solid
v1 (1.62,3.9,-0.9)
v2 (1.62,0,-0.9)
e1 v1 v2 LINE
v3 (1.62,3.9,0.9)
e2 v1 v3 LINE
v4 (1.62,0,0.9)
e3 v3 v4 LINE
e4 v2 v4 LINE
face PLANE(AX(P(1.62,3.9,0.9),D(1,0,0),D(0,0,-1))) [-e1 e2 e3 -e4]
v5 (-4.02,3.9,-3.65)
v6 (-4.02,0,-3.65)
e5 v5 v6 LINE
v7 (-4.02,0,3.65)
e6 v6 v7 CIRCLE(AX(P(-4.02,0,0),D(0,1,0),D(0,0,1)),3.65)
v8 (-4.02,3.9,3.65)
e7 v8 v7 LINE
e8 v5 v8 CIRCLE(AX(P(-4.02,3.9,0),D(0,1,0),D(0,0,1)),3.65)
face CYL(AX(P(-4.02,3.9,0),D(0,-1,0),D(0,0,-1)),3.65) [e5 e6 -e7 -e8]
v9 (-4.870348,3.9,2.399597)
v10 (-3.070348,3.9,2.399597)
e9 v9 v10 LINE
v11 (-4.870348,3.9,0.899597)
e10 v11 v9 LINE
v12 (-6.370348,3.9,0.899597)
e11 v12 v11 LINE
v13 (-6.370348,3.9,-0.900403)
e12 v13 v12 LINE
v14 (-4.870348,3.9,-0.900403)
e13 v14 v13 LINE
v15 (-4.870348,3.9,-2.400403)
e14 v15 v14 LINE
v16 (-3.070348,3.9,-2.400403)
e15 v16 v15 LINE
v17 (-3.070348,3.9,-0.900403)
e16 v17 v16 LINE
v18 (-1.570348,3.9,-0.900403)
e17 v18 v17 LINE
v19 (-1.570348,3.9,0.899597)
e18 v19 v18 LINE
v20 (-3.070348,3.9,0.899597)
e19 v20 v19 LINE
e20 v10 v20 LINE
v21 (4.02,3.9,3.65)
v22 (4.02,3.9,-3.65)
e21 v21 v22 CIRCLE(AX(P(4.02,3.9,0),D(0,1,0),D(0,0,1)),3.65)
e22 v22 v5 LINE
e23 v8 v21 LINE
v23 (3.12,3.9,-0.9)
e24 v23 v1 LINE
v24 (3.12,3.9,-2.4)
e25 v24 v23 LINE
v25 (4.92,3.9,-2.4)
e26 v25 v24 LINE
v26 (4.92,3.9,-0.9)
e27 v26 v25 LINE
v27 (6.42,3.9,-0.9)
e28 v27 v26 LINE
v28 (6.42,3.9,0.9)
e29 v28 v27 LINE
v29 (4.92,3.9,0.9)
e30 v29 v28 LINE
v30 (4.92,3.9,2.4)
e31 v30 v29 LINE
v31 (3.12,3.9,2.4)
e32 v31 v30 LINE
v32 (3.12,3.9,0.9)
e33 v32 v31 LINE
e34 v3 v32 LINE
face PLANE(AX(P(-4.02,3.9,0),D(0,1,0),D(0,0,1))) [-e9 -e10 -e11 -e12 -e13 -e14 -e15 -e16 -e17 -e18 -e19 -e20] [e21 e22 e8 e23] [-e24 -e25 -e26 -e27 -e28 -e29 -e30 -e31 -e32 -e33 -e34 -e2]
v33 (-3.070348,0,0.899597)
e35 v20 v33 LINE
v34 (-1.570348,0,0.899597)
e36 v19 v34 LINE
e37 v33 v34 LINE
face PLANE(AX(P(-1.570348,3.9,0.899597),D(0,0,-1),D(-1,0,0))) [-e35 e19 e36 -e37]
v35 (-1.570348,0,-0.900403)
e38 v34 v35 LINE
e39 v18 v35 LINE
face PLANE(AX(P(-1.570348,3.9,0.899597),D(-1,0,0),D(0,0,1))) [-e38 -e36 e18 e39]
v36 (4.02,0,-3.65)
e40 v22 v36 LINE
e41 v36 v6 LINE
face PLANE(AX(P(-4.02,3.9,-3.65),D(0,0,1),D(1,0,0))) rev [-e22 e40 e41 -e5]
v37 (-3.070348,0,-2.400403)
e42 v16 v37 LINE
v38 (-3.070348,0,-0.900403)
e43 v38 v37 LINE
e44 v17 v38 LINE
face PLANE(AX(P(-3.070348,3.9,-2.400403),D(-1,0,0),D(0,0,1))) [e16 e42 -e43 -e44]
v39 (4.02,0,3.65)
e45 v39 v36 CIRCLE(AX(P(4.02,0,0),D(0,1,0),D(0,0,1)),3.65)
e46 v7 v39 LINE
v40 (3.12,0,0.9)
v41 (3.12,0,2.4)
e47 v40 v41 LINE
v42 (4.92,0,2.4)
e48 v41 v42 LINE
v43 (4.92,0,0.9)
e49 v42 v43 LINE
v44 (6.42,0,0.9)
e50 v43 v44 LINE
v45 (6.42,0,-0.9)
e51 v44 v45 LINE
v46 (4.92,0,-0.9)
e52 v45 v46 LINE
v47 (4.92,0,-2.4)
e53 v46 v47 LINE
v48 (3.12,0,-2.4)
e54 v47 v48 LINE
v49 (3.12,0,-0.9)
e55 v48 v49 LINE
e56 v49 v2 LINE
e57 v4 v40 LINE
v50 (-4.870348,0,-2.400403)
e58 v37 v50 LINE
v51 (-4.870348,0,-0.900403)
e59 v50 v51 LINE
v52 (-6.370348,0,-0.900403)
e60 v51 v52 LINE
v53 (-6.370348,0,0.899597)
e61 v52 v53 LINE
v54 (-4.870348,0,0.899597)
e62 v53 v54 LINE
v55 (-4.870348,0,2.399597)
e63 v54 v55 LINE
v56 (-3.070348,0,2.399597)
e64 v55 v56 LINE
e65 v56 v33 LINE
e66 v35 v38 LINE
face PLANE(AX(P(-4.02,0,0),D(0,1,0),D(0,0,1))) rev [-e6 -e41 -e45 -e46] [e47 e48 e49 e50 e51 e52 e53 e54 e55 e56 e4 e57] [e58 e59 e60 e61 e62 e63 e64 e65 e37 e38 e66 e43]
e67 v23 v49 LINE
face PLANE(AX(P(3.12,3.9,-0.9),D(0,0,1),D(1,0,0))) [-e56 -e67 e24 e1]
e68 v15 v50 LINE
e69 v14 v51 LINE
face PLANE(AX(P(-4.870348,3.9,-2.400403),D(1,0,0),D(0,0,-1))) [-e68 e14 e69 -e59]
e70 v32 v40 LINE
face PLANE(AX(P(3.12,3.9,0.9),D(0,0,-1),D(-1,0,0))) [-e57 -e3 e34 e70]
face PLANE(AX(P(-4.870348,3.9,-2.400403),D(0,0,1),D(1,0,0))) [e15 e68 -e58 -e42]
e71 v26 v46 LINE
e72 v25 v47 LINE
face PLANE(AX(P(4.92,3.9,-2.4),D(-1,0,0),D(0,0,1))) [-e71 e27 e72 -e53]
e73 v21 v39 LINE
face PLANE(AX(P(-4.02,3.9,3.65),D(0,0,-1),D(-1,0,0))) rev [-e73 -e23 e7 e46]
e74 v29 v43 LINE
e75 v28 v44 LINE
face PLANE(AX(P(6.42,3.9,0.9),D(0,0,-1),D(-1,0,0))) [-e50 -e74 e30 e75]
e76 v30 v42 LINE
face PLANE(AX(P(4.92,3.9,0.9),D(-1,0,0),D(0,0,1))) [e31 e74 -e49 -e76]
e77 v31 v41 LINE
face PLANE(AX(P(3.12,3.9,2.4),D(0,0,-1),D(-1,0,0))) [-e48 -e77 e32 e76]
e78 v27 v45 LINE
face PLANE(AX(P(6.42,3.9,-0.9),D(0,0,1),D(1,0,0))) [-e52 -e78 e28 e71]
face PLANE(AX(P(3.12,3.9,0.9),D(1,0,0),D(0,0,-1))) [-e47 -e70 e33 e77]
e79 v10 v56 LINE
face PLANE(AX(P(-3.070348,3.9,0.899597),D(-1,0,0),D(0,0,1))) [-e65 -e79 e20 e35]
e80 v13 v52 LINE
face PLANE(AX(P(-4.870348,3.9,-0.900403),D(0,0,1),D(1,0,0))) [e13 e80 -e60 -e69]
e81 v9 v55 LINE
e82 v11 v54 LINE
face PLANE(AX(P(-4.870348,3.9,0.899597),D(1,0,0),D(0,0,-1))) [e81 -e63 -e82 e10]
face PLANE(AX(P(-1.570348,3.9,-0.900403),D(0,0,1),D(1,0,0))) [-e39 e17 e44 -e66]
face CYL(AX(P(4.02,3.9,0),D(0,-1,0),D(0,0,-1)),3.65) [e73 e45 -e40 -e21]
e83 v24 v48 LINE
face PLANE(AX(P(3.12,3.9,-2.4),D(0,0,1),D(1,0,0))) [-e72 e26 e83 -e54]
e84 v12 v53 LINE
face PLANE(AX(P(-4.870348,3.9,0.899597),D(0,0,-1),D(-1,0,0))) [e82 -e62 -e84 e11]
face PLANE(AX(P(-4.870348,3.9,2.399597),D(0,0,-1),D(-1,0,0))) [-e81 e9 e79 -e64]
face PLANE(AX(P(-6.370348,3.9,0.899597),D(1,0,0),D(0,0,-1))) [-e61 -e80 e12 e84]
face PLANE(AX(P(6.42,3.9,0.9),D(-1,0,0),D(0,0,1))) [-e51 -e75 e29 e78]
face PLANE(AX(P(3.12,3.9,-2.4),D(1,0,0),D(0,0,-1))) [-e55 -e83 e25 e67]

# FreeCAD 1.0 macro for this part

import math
import FreeCAD as App
import Part
import Sketcher


def add_polygon(sketch, points):
    """Adds a closed chain of lines whose ends are joined by coincident constraints."""
    first, n = sketch.GeometryCount, len(points)
    for a, b in zip(points, points[1:] + points[:1]):
        sketch.addGeometry(Part.LineSegment(App.Vector(*a, 0), App.Vector(*b, 0)), False)
    for i in range(n):
        sketch.addConstraint(Sketcher.Constraint("Coincident", first + i, 2, first + (i + 1) % n, 1))

doc = App.newDocument("Part")
params = doc.addObject("Spreadsheet::Sheet", "Params")
for row, (alias, value) in enumerate([
    ("sketch1_radius", "3.65 mm"),
    ("sketch1_width", "1.8 mm"),
    ("sketch1_width2", "1.5 mm"),
    ("sketch1_width3", "8.04 mm"),
    ("pad1_length", "3.9 mm"),
], start=1):
    params.set(f"A{row}", alias)
    params.set(f"B{row}", "=" + value)
    params.setAlias(f"B{row}", alias)

body = doc.addObject("PartDesign::Body", "Body")

# Sketch on XZ plane
sketch1 = body.newObject("Sketcher::SketchObject", "Sketch")
sketch1.AttachmentSupport = (doc.getObject("XZ_Plane"), [""])
sketch1.MapMode = "FlatFace"
sketch1.addGeometry(Part.LineSegment(App.Vector(4, -3.6, 0), App.Vector(-4, -3.6, 0)), False)  # 0
sketch1.addGeometry(Part.ArcOfCircle(Part.Circle(App.Vector(-4, 0, 0), App.Vector(0, 0, 1), 3.6), math.radians(90), math.radians(270)), False)  # 1
sketch1.addGeometry(Part.LineSegment(App.Vector(-4, 3.6, 0), App.Vector(4, 3.6, 0)), False)  # 2
sketch1.addGeometry(Part.ArcOfCircle(Part.Circle(App.Vector(4, 0, 0), App.Vector(0, 0, 1), 3.6), math.radians(-90), math.radians(90)), False)  # 3
add_polygon(sketch1, [(3.1, -2.4), (4.9, -2.4), (4.9, -0.9), (6.4, -0.9), (6.4, 0.9), (4.9, 0.9), (4.9, 2.4), (3.1, 2.4), (3.1, 0.9), (1.6, 0.9), (1.6, -0.9), (3.1, -0.9)])  # lines 4-15
add_polygon(sketch1, [(-4.9, -2.4), (-3.1, -2.4), (-3.1, -0.9), (-1.6, -0.9), (-1.6, 0.9), (-3.1, 0.9), (-3.1, 2.4), (-4.9, 2.4), (-4.9, 0.9), (-6.4, 0.9), (-6.4, -0.9), (-4.9, -0.9)])  # lines 16-27
sketch1.addConstraint([
    Sketcher.Constraint("Tangent", 0, 2, 1, 2),
    Sketcher.Constraint("Tangent", 1, 1, 2, 1),
    Sketcher.Constraint("Tangent", 2, 2, 3, 2),
    Sketcher.Constraint("Tangent", 3, 1, 0, 1),
    Sketcher.Constraint("Horizontal", 0),
    Sketcher.Constraint("Horizontal", 2),
    Sketcher.Constraint("Horizontal", 4),
    Sketcher.Constraint("Vertical", 5),
    Sketcher.Constraint("Horizontal", 6),
    Sketcher.Constraint("Vertical", 7),
    Sketcher.Constraint("Horizontal", 8),
    Sketcher.Constraint("Vertical", 9),
    Sketcher.Constraint("Horizontal", 10),
    Sketcher.Constraint("Vertical", 11),
    Sketcher.Constraint("Horizontal", 12),
    Sketcher.Constraint("Vertical", 13),
    Sketcher.Constraint("Horizontal", 14),
    Sketcher.Constraint("Vertical", 15),
    Sketcher.Constraint("Horizontal", 16),
    Sketcher.Constraint("Vertical", 17),
    Sketcher.Constraint("Horizontal", 18),
    Sketcher.Constraint("Vertical", 19),
    Sketcher.Constraint("Horizontal", 20),
    Sketcher.Constraint("Vertical", 21),
    Sketcher.Constraint("Horizontal", 22),
    Sketcher.Constraint("Vertical", 23),
    Sketcher.Constraint("Horizontal", 24),
    Sketcher.Constraint("Vertical", 25),
    Sketcher.Constraint("Horizontal", 26),
    Sketcher.Constraint("Vertical", 27),
    Sketcher.Constraint("Symmetric", 1, 3, 3, 3, -1, 1),
    Sketcher.Constraint("Symmetric", 5, 2, 8, 2, -1),
    Sketcher.Constraint("Symmetric", 11, 2, 14, 2, -1),
    Sketcher.Constraint("Horizontal", 8, 2, 11, 2),
    Sketcher.Constraint("Horizontal", 20, 2, 23, 2),
    Sketcher.Constraint("Horizontal", 18, 2, 25, 2),
    Sketcher.Constraint("Vertical", 17, 2, 20, 2),
    Sketcher.Constraint("Vertical", 23, 2, 26, 2),
    Sketcher.Constraint("Equal", 8, 12),
    Sketcher.Constraint("Equal", 10, 16),
    Sketcher.Constraint("Equal", 14, 18),
    Sketcher.Constraint("Equal", 20, 24),
    Sketcher.Constraint("Equal", 26, 5),
    Sketcher.Constraint("Equal", 22, 7),
    Sketcher.Constraint("Equal", 5, 9),
    Sketcher.Constraint("Equal", 15, 17),
    Sketcher.Constraint("Equal", 13, 19),
    Sketcher.Constraint("Equal", 17, 21),
    Sketcher.Constraint("Radius", 1, 3.65),
    Sketcher.Constraint("DistanceX", 4, 1, 4, 2, 1.8),
    Sketcher.Constraint("DistanceX", 6, 1, 6, 2, 1.5),
    Sketcher.Constraint("DistanceX", 0, 2, 0, 1, 8.04),
    Sketcher.Constraint("DistanceX", 3, 1, 4, 2, 0.9),
    Sketcher.Constraint("DistanceX", 16, 2, -1, 1, 3.070348),
    Sketcher.Constraint("DistanceY", 16, 2, -1, 1, 2.400403),
])
sketch1.setExpression("Constraints[72]", "Params.sketch1_radius")
sketch1.setExpression("Constraints[73]", "Params.sketch1_width")
sketch1.setExpression("Constraints[74]", "Params.sketch1_width2")
sketch1.setExpression("Constraints[75]", "Params.sketch1_width3")
pad1 = body.newObject("PartDesign::Pad", "Pad")
pad1.Profile = sketch1
pad1.setExpression("Length", "Params.pad1_length")
pad1.Reversed = True

doc.recompute()
